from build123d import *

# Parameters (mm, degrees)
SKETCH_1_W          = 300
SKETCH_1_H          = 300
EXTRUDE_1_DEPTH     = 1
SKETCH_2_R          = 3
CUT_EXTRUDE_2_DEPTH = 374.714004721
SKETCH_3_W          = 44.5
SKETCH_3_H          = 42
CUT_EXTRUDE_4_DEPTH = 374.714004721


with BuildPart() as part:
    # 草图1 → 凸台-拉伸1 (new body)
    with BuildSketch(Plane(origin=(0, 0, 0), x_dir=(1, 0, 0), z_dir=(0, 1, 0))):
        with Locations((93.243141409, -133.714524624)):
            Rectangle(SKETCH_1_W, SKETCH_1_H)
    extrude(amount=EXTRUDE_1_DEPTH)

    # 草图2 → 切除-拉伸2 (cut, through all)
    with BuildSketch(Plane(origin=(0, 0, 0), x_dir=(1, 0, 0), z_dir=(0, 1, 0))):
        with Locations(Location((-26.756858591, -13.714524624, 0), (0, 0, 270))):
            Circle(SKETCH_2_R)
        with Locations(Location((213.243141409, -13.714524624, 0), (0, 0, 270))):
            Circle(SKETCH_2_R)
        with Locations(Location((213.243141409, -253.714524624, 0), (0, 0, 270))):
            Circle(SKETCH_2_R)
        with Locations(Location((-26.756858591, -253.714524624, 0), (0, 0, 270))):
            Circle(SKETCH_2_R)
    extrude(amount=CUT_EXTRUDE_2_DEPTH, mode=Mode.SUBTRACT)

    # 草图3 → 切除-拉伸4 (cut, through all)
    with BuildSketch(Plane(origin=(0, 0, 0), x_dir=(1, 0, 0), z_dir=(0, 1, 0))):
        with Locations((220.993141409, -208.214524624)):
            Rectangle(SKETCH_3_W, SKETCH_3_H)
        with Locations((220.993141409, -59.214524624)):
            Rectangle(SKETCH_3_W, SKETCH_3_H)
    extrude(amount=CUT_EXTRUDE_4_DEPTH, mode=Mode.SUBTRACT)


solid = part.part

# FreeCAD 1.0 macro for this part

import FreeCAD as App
import Part
import Sketcher
Q = App.Units.Quantity


def add_polygon(sketch, points):
    """Adds a closed chain of lines whose ends are joined by coincident constraints."""
    first, n = sketch.GeometryCount, len(points)
    for a, b in zip(points, points[1:] + points[:1]):
        sketch.addGeometry(Part.LineSegment(App.Vector(*a, 0), App.Vector(*b, 0)), False)
    for i in range(n):
        sketch.addConstraint(Sketcher.Constraint("Coincident", first + i, 2, first + (i + 1) % n, 1))

doc = App.newDocument("Part")
body = doc.addObject("PartDesign::Body", "Body")

# Sketch on XZ plane
sketch1 = doc.addObject("Sketcher::SketchObject", "Sketch")
body.addObject(sketch1)
sketch1.AttachmentSupport = (doc.XZ_Plane, [""])
sketch1.MapMode = "FlatFace"
add_polygon(sketch1, [(-57, -16), (-57, 284), (243, 284), (243, -16)])  # lines 0-3
sketch1.addConstraint([
    Sketcher.Constraint("Vertical", 0),
    Sketcher.Constraint("Horizontal", 1),
    Sketcher.Constraint("Vertical", 2),
    Sketcher.Constraint("Horizontal", 3),
    Sketcher.Constraint("Equal", 3, 0),
    Sketcher.Constraint("DistanceX", 1, 1, 1, 2, Q("300 mm")),
    Sketcher.Constraint("DistanceX", 0, 2, -1, 1, Q("56.756859 mm")),
    Sketcher.Constraint("DistanceY", -1, 1, 0, 2, Q("283.714525 mm")),
])
pad1 = doc.addObject("PartDesign::Pad", "Pad")
body.addObject(pad1)
pad1.Profile = sketch1
pad1.Length = 1
pad1.Reversed = True

# Sketch on XZ plane
sketch2 = doc.addObject("Sketcher::SketchObject", "Sketch001")
body.addObject(sketch2)
sketch2.AttachmentSupport = (doc.XZ_Plane, [""])
sketch2.MapMode = "FlatFace"
sketch2.addGeometry([
    Part.Circle(App.Vector(-26.8, 13.7, 0), App.Vector(0, 0, 1), 3),
    Part.Circle(App.Vector(213.2, 13.7, 0), App.Vector(0, 0, 1), 3),
    Part.Circle(App.Vector(213.2, 253.7, 0), App.Vector(0, 0, 1), 3),
    Part.Circle(App.Vector(-26.8, 253.7, 0), App.Vector(0, 0, 1), 3),
], False)
sketch2.addConstraint([
    Sketcher.Constraint("Equal", 0, 1),
    Sketcher.Constraint("Equal", 1, 2),
    Sketcher.Constraint("Equal", 2, 3),
    Sketcher.Constraint("Horizontal", 0, 3, 1, 3),
    Sketcher.Constraint("Horizontal", 2, 3, 3, 3),
    Sketcher.Constraint("Vertical", 1, 3, 2, 3),
    Sketcher.Constraint("Vertical", 0, 3, 3, 3),
    Sketcher.Constraint("Diameter", 0, Q("6 mm")),
    Sketcher.Constraint("DistanceX", 0, 3, 1, 3, Q("240 mm")),
    Sketcher.Constraint("DistanceY", 1, 3, 2, 3, Q("240 mm")),
    Sketcher.Constraint("DistanceX", 0, 3, -1, 1, Q("26.756859 mm")),
    Sketcher.Constraint("DistanceY", -1, 1, 0, 3, Q("13.714525 mm")),
])
pocket1 = doc.addObject("PartDesign::Pocket", "Pocket")
body.addObject(pocket1)
pocket1.Profile = sketch2
pocket1.Type = "ThroughAll"

# Sketch on XZ plane
sketch3 = doc.addObject("Sketcher::SketchObject", "Sketch002")
body.addObject(sketch3)
sketch3.AttachmentSupport = (doc.XZ_Plane, [""])
sketch3.MapMode = "FlatFace"
add_polygon(sketch3, [(199, 187), (199, 229), (243, 229), (243, 187)])  # lines 0-3
add_polygon(sketch3, [(199, 38), (199, 80), (243, 80), (243, 38)])  # lines 4-7
sketch3.addConstraint([
    Sketcher.Constraint("Vertical", 0),
    Sketcher.Constraint("Horizontal", 1),
    Sketcher.Constraint("Vertical", 2),
    Sketcher.Constraint("Horizontal", 3),
    Sketcher.Constraint("Vertical", 4),
    Sketcher.Constraint("Horizontal", 5),
    Sketcher.Constraint("Vertical", 6),
    Sketcher.Constraint("Horizontal", 7),
    Sketcher.Constraint("Vertical", 3, 2, 4, 2),
    Sketcher.Constraint("Vertical", 2, 2, 5, 2),
    Sketcher.Constraint("Equal", 2, 4),
    Sketcher.Constraint("DistanceY", 0, 1, 0, 2, Q("42 mm")),
    Sketcher.Constraint("DistanceX", 1, 1, 1, 2, Q("44.5 mm")),
    Sketcher.Constraint("DistanceY", 4, 2, 3, 2, Q("107 mm")),
    Sketcher.Constraint("DistanceX", -1, 1, 0, 2, Q("198.743141 mm")),
    Sketcher.Constraint("DistanceY", -1, 1, 0, 2, Q("229.214525 mm")),
])
pocket2 = doc.addObject("PartDesign::Pocket", "Pocket001")
body.addObject(pocket2)
pocket2.Profile = sketch3
pocket2.Type = "ThroughAll"

doc.recompute()
